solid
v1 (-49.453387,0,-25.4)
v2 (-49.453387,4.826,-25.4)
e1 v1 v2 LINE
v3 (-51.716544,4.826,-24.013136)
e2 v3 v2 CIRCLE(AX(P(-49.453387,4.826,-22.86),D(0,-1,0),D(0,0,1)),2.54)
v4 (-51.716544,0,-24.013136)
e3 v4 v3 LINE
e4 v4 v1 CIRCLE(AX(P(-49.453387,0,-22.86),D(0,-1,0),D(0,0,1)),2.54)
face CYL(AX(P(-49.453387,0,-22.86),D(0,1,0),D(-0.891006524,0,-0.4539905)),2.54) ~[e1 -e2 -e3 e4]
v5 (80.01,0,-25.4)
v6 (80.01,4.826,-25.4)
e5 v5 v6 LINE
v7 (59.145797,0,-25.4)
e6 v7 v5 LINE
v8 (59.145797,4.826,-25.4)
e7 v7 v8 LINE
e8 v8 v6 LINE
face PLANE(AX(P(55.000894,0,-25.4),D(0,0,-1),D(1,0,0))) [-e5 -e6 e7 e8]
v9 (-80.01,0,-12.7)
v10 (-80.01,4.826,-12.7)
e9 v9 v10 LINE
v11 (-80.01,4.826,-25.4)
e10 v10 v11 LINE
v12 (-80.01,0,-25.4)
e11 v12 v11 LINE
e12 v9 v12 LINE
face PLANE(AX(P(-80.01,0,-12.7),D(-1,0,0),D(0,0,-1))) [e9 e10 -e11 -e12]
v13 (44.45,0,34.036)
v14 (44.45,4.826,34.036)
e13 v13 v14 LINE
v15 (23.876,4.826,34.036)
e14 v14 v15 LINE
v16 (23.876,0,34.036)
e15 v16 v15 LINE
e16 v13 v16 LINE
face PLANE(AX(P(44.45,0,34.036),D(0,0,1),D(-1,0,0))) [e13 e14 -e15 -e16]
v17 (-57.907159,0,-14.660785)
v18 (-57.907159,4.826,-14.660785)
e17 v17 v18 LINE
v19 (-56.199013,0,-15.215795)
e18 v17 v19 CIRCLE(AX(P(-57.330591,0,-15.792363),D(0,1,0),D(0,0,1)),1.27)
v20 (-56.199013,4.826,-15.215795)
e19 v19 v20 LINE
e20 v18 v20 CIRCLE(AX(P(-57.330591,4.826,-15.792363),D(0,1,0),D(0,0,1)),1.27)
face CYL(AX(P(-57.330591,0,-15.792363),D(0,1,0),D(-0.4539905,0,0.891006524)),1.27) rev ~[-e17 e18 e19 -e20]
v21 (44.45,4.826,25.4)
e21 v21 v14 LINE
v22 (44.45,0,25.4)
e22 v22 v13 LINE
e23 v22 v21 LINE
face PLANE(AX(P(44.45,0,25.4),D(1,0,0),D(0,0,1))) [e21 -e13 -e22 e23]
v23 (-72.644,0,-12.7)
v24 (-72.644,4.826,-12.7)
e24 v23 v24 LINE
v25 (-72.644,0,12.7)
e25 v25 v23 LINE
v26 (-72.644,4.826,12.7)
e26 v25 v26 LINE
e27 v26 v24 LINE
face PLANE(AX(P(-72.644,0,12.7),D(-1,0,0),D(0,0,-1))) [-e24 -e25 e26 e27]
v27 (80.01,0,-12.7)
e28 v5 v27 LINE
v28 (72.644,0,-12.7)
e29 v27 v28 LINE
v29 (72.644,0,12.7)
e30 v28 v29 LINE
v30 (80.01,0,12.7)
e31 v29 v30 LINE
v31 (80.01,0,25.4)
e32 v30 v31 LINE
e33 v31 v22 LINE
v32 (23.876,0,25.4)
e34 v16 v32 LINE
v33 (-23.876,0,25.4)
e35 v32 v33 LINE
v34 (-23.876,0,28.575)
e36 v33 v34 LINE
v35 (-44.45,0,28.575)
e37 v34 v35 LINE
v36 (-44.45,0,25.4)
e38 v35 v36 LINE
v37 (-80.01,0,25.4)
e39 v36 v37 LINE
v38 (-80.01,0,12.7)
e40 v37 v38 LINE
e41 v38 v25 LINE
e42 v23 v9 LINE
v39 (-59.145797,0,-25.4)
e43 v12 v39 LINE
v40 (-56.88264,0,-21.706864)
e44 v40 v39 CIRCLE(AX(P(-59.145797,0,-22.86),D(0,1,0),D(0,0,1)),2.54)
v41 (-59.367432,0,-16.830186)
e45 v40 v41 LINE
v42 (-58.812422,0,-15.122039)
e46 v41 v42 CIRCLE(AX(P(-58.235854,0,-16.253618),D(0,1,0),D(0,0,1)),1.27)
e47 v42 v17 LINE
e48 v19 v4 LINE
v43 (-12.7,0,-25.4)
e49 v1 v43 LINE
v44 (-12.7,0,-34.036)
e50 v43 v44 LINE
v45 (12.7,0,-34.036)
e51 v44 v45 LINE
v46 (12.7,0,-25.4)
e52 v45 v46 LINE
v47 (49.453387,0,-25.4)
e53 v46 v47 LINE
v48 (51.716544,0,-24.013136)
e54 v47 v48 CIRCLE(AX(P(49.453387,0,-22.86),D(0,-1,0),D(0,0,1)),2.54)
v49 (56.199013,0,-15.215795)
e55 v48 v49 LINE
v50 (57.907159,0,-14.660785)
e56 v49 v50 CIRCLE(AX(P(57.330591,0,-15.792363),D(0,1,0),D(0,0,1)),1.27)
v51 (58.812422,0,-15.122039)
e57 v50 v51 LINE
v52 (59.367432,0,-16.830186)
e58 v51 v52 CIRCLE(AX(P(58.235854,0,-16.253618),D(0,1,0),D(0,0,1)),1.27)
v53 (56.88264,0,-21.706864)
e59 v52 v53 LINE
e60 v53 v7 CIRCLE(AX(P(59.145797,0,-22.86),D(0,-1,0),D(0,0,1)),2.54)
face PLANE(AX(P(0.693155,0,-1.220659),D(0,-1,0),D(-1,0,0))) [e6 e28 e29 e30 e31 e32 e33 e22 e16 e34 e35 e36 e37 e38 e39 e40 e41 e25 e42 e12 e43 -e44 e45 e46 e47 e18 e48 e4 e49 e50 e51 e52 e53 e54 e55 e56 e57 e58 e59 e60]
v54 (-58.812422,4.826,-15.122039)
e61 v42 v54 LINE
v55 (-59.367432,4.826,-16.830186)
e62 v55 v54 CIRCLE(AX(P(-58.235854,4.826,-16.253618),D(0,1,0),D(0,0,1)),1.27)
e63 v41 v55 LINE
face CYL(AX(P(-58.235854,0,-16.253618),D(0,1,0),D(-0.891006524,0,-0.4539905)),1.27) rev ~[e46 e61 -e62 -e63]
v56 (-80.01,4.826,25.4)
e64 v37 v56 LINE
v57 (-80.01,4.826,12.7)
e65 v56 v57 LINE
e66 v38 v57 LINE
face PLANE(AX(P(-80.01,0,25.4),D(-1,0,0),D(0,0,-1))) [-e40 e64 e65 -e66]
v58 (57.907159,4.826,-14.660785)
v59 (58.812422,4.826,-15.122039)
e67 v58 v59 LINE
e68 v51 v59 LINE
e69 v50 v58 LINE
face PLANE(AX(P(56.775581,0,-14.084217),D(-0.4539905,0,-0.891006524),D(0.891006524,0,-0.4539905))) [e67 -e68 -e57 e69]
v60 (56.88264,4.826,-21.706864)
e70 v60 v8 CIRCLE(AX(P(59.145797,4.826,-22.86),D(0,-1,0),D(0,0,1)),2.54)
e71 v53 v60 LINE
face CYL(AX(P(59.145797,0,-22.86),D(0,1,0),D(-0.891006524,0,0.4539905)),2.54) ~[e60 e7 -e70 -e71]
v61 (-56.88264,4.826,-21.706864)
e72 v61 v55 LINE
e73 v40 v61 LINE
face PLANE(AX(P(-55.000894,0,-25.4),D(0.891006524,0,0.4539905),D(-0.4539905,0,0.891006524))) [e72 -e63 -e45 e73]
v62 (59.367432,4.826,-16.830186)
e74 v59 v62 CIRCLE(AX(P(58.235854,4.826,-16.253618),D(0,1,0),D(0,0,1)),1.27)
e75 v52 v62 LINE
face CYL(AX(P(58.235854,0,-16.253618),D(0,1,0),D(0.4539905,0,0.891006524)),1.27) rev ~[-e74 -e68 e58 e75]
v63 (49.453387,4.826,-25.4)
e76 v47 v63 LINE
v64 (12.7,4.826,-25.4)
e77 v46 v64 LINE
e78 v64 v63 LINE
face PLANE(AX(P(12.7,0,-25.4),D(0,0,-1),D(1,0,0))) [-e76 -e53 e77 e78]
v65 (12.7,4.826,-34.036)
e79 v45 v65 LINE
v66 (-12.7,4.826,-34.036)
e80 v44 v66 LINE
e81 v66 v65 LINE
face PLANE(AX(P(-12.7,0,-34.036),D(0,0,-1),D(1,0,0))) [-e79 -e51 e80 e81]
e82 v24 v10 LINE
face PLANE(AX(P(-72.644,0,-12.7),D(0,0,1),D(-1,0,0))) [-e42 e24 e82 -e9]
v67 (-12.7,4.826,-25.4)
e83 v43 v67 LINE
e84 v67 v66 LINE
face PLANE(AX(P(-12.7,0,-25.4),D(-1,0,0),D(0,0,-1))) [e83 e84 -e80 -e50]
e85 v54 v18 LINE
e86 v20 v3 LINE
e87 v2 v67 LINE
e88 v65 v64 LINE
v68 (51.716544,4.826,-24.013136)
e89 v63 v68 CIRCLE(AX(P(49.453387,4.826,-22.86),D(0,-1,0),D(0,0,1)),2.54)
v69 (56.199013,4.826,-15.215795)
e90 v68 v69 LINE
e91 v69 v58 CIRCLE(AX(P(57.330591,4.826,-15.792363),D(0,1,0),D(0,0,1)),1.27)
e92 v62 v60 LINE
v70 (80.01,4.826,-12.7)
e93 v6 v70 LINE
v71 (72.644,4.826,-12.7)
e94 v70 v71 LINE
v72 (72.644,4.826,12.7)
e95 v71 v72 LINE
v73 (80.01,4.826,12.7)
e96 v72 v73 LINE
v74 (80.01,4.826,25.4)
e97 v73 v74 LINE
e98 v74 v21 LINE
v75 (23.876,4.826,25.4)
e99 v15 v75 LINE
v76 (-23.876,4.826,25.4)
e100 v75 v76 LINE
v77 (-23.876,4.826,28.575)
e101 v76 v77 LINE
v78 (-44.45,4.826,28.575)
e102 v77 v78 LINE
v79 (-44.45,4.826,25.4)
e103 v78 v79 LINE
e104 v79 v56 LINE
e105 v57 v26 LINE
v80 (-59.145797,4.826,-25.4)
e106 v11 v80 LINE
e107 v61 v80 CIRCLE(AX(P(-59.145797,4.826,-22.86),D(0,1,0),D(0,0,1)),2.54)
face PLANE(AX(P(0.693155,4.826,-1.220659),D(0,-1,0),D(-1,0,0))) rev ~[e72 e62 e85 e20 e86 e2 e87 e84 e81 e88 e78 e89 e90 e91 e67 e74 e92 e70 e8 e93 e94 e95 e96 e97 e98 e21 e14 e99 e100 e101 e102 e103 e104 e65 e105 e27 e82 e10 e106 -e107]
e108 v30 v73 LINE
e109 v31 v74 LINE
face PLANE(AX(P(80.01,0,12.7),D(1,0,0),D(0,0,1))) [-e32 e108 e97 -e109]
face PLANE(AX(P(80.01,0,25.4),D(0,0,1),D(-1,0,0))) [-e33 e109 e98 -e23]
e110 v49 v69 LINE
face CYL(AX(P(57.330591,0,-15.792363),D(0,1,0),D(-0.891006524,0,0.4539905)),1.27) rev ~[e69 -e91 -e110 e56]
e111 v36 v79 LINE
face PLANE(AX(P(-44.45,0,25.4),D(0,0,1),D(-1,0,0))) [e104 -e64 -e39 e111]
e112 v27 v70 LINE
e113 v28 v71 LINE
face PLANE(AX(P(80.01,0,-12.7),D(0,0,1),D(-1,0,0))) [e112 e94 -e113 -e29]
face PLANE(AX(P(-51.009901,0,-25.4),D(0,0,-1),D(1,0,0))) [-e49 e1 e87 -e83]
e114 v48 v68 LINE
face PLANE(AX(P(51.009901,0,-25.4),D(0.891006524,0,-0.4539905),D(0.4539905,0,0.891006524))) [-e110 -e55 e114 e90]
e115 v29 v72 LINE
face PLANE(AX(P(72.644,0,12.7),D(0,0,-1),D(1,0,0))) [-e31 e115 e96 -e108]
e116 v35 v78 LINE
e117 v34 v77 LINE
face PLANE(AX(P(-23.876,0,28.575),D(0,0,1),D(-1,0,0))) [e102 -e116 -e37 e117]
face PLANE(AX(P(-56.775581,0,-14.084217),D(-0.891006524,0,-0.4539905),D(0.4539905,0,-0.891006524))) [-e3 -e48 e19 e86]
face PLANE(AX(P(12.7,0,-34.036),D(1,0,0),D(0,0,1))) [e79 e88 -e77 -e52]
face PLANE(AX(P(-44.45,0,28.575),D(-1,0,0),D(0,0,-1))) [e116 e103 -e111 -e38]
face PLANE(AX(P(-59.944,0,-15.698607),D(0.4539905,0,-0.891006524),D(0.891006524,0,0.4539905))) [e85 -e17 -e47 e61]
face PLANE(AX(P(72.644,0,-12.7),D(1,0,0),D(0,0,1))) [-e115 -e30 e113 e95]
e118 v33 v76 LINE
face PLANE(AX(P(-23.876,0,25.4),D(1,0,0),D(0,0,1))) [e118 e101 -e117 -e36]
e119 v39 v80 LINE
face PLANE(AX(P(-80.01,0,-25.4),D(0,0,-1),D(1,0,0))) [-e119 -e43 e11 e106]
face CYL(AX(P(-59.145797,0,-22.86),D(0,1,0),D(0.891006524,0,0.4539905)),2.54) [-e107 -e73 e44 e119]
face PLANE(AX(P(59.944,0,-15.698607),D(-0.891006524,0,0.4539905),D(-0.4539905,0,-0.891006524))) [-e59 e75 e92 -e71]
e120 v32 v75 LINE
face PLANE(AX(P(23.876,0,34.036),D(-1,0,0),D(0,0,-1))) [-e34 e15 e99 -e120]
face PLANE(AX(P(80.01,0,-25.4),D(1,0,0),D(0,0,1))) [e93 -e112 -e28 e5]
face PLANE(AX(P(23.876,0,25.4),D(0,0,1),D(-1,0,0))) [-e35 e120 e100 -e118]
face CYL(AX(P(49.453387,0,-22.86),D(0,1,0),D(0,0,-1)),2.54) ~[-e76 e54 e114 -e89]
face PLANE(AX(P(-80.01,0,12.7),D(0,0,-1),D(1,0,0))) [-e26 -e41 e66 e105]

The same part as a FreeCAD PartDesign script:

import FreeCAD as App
import Part
import Sketcher

V = App.Vector
Q = App.Units.Quantity


def edges_at(feature, points):
    """Names of the edges that pass closest to the given points."""
    edges = feature.Shape.Edges
    near = lambda p: min(range(len(edges)), key=lambda i: edges[i].distToShape(Part.Vertex(*p))[0])
    return sorted({f"Edge{near(p) + 1}" for p in points})


def add_polygon(sketch, points):
    """Adds a closed chain of lines whose ends are joined by coincident constraints."""
    first, n = sketch.GeometryCount, len(points)
    for a, b in zip(points, points[1:] + points[:1]):
        sketch.addGeometry(Part.LineSegment(App.Vector(*a, 0), App.Vector(*b, 0)), False)
    for i in range(n):
        sketch.addConstraint(Sketcher.Constraint("Coincident", first + i, 2, first + (i + 1) % n, 1))

doc = App.newDocument("Part")
body = doc.addObject("PartDesign::Body", "Body")

sketch1 = body.newObject("Sketcher::SketchObject", "Sketch")
sketch1.AttachmentSupport = (doc.getObject("XZ_Plane"), [""])
sketch1.MapMode = "FlatFace"
add_polygon(sketch1, [(-55, -25.4), (-80, -25.4), (-80, -12.7), (-72.6, -12.7), (-72.6, 12.7), (-80, 12.7), (-80, 25.4), (-44.5, 25.4), (-44.5, 28.6), (-23.9, 28.6), (-23.9, 25.4), (23.9, 25.4), (23.9, 34), (44.5, 34), (44.5, 25.4), (80, 25.4), (80, 12.7), (72.6, 12.7), (72.6, -12.7), (80, -12.7), (80, -25.4), (55, -25.4), (59.9, -15.7), (56.8, -14.1), (51, -25.4), (12.7, -25.4), (12.7, -34), (-12.7, -34), (-12.7, -25.4), (-51, -25.4), (-56.8, -14.1), (-59.9, -15.7)])
sketch1.addConstraint(Sketcher.Constraint("Horizontal", 0))
sketch1.addConstraint(Sketcher.Constraint("Vertical", 1))
sketch1.addConstraint(Sketcher.Constraint("Horizontal", 2))
sketch1.addConstraint(Sketcher.Constraint("Vertical", 3))
sketch1.addConstraint(Sketcher.Constraint("Horizontal", 4))
sketch1.addConstraint(Sketcher.Constraint("Vertical", 5))
sketch1.addConstraint(Sketcher.Constraint("Horizontal", 6))
sketch1.addConstraint(Sketcher.Constraint("Vertical", 7))
sketch1.addConstraint(Sketcher.Constraint("Horizontal", 8))
sketch1.addConstraint(Sketcher.Constraint("Vertical", 9))
sketch1.addConstraint(Sketcher.Constraint("Horizontal", 10))
sketch1.addConstraint(Sketcher.Constraint("Vertical", 11))
sketch1.addConstraint(Sketcher.Constraint("Horizontal", 12))
sketch1.addConstraint(Sketcher.Constraint("Vertical", 13))
sketch1.addConstraint(Sketcher.Constraint("Horizontal", 14))
sketch1.addConstraint(Sketcher.Constraint("Vertical", 15))
sketch1.addConstraint(Sketcher.Constraint("Horizontal", 16))
sketch1.addConstraint(Sketcher.Constraint("Vertical", 17))
sketch1.addConstraint(Sketcher.Constraint("Horizontal", 18))
sketch1.addConstraint(Sketcher.Constraint("Vertical", 19))
sketch1.addConstraint(Sketcher.Constraint("Horizontal", 20))
sketch1.addConstraint(Sketcher.Constraint("Horizontal", 24))
sketch1.addConstraint(Sketcher.Constraint("Vertical", 25))
sketch1.addConstraint(Sketcher.Constraint("Horizontal", 26))
sketch1.addConstraint(Sketcher.Constraint("Vertical", 27))
sketch1.addConstraint(Sketcher.Constraint("Horizontal", 28))
sketch1.addConstraint(Sketcher.Constraint("Symmetric", 0, 2, 14, 2, -1, 1))
sketch1.addConstraint(Sketcher.Constraint("Symmetric", 2, 2, 16, 2, -1, 1))
sketch1.addConstraint(Sketcher.Constraint("Symmetric", 4, 2, 18, 2, -1, 1))
sketch1.addConstraint(Sketcher.Constraint("Symmetric", 6, 2, 13, 2, -2))
sketch1.addConstraint(Sketcher.Constraint("Symmetric", 4, 2, 15, 2, -2))
sketch1.addConstraint(Sketcher.Constraint("Symmetric", 24, 2, 27, 2, -2))
sketch1.addConstraint(Sketcher.Constraint("Symmetric", 22, 2, 29, 2, -2))
sketch1.addConstraint(Sketcher.Constraint("Symmetric", 21, 2, 30, 2, -2))
sketch1.addConstraint(Sketcher.Constraint("Symmetric", 20, 2, 31, 2, -2))
sketch1.addConstraint(Sketcher.Constraint("Perpendicular", 21, 22))
sketch1.addConstraint(Sketcher.Constraint("Perpendicular", 22, 23))
sketch1.addConstraint(Sketcher.Constraint("Perpendicular", 29, 30))
sketch1.addConstraint(Sketcher.Constraint("Horizontal", 6, 2, 9, 2))
sketch1.addConstraint(Sketcher.Constraint("Horizontal", 20, 2, 23, 2))
sketch1.addConstraint(Sketcher.Constraint("Equal", 8, 12))
sketch1.addConstraint(Sketcher.Constraint("Equal", 26, 3))
sketch1.addConstraint(Sketcher.Constraint("Equal", 13, 25))
sketch1.addConstraint(Sketcher.Constraint("DistanceX", 26, 2, 26, 1, Q("1 in")))
sketch1.addConstraint(Sketcher.Constraint("DistanceX", 6, 1, 6, 2, Q("1.4 in")))
sketch1.addConstraint(Sketcher.Constraint("DistanceY", 1, 1, 1, 2, Q("0.5 in")))
sketch1.addConstraint(Sketcher.Constraint("Angle", 21, Q("63 deg")))
sketch1.addConstraint(Sketcher.Constraint("Distance", 23, Q("0.5 in")))
sketch1.addConstraint(Sketcher.Constraint("DistanceX", 2, 1, 2, 2, Q("0.29 in")))
sketch1.addConstraint(Sketcher.Constraint("DistanceX", 8, 1, 8, 2, Q("0.81 in")))
sketch1.addConstraint(Sketcher.Constraint("DistanceX", 10, 1, 10, 2, Q("1.88 in")))
sketch1.addConstraint(Sketcher.Constraint("DistanceY", 11, 1, 11, 2, Q("0.34 in")))
sketch1.addConstraint(Sketcher.Constraint("DistanceX", 21, 2, 17, 2, Q("0.5 in")))
sketch1.addConstraint(Sketcher.Constraint("Distance", 22, Q("0.14 in")))
sketch1.addConstraint(Sketcher.Constraint("DistanceY", 7, 1, 7, 2, Q("0.125 in")))
pad1 = body.newObject("PartDesign::Pad", "Pad")
pad1.Profile = sketch1
pad1.Length = Q("0.19 in")
pad1.Reversed = True
doc.recompute()

fillet = body.newObject("PartDesign::Fillet", "Fillet")
fillet.Base = (pad1, edges_at(pad1, [
    (-59.944, 2.413, -15.699),
    (-56.776, 2.413, -14.084),
    (56.776, 2.413, -14.084),
    (59.944, 2.413, -15.699),
]))
fillet.Radius = Q("0.05 in")
doc.recompute()

fillet2 = body.newObject("PartDesign::Fillet", "Fillet001")
fillet2.Base = (fillet, edges_at(fillet, [
    (-55.001, 2.413, -25.4),
    (-51.01, 2.413, -25.4),
    (51.01, 2.413, -25.4),
    (55.001, 2.413, -25.4),
]))
fillet2.Radius = Q("0.1 in")

doc.recompute()
